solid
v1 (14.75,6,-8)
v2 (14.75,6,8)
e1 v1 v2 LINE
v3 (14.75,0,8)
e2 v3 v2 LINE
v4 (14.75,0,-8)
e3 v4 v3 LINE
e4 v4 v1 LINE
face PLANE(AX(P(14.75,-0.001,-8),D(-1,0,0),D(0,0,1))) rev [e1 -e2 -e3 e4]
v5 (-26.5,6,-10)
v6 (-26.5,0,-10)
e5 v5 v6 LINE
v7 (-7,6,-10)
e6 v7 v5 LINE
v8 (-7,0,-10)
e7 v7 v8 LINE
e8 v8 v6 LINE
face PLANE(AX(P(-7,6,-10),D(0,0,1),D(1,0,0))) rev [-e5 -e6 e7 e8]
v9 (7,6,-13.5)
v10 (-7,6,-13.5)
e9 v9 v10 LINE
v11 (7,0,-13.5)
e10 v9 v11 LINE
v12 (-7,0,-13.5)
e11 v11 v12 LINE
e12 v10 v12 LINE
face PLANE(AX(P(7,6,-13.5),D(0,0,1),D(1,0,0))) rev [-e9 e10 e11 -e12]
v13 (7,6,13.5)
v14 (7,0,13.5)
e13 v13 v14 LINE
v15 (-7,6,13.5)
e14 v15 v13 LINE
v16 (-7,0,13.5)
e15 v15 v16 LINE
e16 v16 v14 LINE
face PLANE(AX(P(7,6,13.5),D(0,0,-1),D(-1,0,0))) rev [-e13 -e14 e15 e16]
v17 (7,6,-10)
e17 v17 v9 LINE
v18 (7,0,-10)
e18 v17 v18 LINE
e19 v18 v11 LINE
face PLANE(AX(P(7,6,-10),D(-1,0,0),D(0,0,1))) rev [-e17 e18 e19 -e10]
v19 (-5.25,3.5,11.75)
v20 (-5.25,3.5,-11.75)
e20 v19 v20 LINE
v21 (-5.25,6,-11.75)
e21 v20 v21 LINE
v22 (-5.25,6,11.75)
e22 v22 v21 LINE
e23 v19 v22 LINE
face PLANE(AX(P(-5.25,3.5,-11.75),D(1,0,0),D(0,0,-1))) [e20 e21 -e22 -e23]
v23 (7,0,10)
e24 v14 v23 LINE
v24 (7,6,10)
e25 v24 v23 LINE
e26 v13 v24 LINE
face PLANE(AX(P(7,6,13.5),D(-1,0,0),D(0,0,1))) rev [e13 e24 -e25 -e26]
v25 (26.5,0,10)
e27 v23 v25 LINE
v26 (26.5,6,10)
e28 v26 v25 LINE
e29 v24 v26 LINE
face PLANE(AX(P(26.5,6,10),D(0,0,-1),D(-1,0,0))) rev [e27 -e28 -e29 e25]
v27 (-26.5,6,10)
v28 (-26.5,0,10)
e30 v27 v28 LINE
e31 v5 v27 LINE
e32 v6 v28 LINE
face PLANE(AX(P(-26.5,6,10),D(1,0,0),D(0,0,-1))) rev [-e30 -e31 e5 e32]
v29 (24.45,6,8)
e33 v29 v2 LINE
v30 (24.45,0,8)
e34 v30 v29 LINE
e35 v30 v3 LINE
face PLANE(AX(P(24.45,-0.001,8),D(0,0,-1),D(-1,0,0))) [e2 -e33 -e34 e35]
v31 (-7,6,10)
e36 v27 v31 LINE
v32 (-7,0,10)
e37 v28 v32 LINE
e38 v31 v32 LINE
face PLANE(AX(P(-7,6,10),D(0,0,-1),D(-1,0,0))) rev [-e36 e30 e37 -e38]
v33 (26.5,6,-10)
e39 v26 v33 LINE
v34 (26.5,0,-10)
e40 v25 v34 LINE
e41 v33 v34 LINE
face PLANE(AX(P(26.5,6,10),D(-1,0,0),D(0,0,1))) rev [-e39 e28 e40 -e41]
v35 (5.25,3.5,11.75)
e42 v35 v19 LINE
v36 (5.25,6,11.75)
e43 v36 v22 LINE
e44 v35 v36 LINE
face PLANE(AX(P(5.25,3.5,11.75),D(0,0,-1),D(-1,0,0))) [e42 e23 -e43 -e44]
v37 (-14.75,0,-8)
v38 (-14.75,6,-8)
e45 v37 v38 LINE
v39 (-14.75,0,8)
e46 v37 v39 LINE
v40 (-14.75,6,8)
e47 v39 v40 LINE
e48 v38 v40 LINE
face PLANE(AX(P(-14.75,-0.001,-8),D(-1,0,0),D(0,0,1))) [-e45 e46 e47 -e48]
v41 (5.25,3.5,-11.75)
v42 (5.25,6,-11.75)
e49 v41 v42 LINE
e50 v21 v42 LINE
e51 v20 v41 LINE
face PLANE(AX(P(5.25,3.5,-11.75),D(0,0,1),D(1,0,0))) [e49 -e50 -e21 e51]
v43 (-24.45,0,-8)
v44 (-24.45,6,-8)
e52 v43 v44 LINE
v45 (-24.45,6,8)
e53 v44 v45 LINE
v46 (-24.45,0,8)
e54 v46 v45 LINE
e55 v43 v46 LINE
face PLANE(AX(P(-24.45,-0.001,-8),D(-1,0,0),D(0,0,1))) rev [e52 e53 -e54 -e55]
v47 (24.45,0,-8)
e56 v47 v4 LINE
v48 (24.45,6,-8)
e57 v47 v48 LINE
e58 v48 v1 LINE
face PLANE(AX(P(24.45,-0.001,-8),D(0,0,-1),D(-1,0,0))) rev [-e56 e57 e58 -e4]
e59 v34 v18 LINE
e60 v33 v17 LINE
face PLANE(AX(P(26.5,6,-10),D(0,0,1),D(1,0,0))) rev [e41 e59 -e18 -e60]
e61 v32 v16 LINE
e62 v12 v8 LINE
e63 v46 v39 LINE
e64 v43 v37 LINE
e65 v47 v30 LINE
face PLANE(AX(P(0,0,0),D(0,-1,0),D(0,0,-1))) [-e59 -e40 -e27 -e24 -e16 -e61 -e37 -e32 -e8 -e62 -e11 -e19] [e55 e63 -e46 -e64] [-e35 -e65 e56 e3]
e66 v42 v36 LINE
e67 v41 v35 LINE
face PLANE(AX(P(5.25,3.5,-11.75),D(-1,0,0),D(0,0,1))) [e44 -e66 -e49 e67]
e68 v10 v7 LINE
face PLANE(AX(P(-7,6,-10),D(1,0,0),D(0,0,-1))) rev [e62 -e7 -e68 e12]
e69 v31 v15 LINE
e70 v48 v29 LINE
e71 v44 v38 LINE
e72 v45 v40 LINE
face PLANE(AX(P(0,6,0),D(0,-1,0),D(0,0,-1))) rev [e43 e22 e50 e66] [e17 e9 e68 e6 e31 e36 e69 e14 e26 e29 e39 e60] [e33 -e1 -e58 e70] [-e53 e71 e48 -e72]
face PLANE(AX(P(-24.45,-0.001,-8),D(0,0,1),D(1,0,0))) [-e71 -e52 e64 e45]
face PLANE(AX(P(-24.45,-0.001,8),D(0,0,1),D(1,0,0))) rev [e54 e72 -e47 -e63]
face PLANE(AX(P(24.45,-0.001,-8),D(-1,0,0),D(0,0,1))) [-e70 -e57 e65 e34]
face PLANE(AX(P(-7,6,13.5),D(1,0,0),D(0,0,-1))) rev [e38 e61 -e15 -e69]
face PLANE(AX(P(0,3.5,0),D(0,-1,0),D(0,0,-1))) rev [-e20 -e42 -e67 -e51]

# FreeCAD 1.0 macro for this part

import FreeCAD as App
import Part
import Sketcher
Q = App.Units.Quantity


def add_polygon(sketch, points):
    """Adds a closed chain of lines whose ends are joined by coincident constraints."""
    first, n = sketch.GeometryCount, len(points)
    for a, b in zip(points, points[1:] + points[:1]):
        sketch.addGeometry(Part.LineSegment(App.Vector(*a, 0), App.Vector(*b, 0)), False)
    for i in range(n):
        sketch.addConstraint(Sketcher.Constraint("Coincident", first + i, 2, first + (i + 1) % n, 1))

doc = App.newDocument("Part")
body = doc.addObject("PartDesign::Body", "Body")

sketch1 = doc.addObject("Sketcher::SketchObject", "Sketch")
body.addObject(sketch1)
sketch1.AttachmentSupport = (doc.XZ_Plane, [""])
sketch1.MapMode = "FlatFace"
add_polygon(sketch1, [(-7, -13.5), (-7, -10), (-26.5, -10), (-26.5, 10), (-7, 10), (-7, 13.5), (7, 13.5), (7, 10), (26.5, 10), (26.5, -10), (7, -10), (7, -13.5)])
sketch1.addConstraint(Sketcher.Constraint("Vertical", 0))
sketch1.addConstraint(Sketcher.Constraint("Horizontal", 1))
sketch1.addConstraint(Sketcher.Constraint("Vertical", 2))
sketch1.addConstraint(Sketcher.Constraint("Horizontal", 3))
sketch1.addConstraint(Sketcher.Constraint("Vertical", 4))
sketch1.addConstraint(Sketcher.Constraint("Horizontal", 5))
sketch1.addConstraint(Sketcher.Constraint("Vertical", 6))
sketch1.addConstraint(Sketcher.Constraint("Horizontal", 7))
sketch1.addConstraint(Sketcher.Constraint("Vertical", 8))
sketch1.addConstraint(Sketcher.Constraint("Horizontal", 9))
sketch1.addConstraint(Sketcher.Constraint("Vertical", 10))
sketch1.addConstraint(Sketcher.Constraint("Horizontal", 11))
sketch1.addConstraint(Sketcher.Constraint("Symmetric", 0, 2, 6, 2, -1, 1))
sketch1.addConstraint(Sketcher.Constraint("Symmetric", 2, 2, 8, 2, -1, 1))
sketch1.addConstraint(Sketcher.Constraint("Symmetric", 4, 2, 10, 2, -1, 1))
sketch1.addConstraint(Sketcher.Constraint("Symmetric", 3, 2, 6, 2, -2))
sketch1.addConstraint(Sketcher.Constraint("DistanceX", 5, 1, 5, 2, Q("14 mm")))
sketch1.addConstraint(Sketcher.Constraint("DistanceY", 2, 1, 2, 2, Q("20 mm")))
sketch1.addConstraint(Sketcher.Constraint("DistanceX", 1, 2, 1, 1, Q("19.5 mm")))
sketch1.addConstraint(Sketcher.Constraint("DistanceY", 0, 1, 0, 2, Q("3.5 mm")))
pad1 = doc.addObject("PartDesign::Pad", "Pad")
body.addObject(pad1)
pad1.Profile = sketch1
pad1.Length = 6
pad1.Reversed = True

sketch2 = doc.addObject("Sketcher::SketchObject", "Sketch001")
body.addObject(sketch2)
sketch2.AttachmentSupport = (doc.XZ_Plane, [""])
sketch2.MapMode = "FlatFace"
sketch2.AttachmentOffset = App.Placement(App.Vector(0, 0, -6), App.Rotation())
add_polygon(sketch2, [(-24, -8), (-24, 8), (-15, 8), (-15, -8)])
sketch2.addConstraint(Sketcher.Constraint("Vertical", 0))
sketch2.addConstraint(Sketcher.Constraint("Horizontal", 1))
sketch2.addConstraint(Sketcher.Constraint("Vertical", 2))
sketch2.addConstraint(Sketcher.Constraint("Horizontal", 3))
sketch2.addConstraint(Sketcher.Constraint("DistanceY", 0, 1, 0, 2, Q("16 mm")))
sketch2.addConstraint(Sketcher.Constraint("DistanceX", 1, 1, 1, 2, Q("9.7 mm")))
sketch2.addConstraint(Sketcher.Constraint("DistanceY", -1, 1, 0, 2, Q("8 mm")))
sketch2.addConstraint(Sketcher.Constraint("DistanceX", 0, 2, -1, 1, Q("24.45 mm")))
pocket1 = doc.addObject("PartDesign::Pocket", "Pocket")
body.addObject(pocket1)
pocket1.Profile = sketch2
pocket1.Type = "UpToFirst"
pocket1.Reversed = True

sketch3 = doc.addObject("Sketcher::SketchObject", "Sketch002")
body.addObject(sketch3)
sketch3.AttachmentSupport = (doc.XZ_Plane, [""])
sketch3.MapMode = "FlatFace"
sketch3.AttachmentOffset = App.Placement(App.Vector(0, 0, -6), App.Rotation())
add_polygon(sketch3, [(15, -8), (15, 8), (24, 8), (24, -8)])
sketch3.addConstraint(Sketcher.Constraint("Vertical", 0))
sketch3.addConstraint(Sketcher.Constraint("Horizontal", 1))
sketch3.addConstraint(Sketcher.Constraint("Vertical", 2))
sketch3.addConstraint(Sketcher.Constraint("Horizontal", 3))
sketch3.addConstraint(Sketcher.Constraint("DistanceY", 0, 1, 0, 2, Q("16 mm")))
sketch3.addConstraint(Sketcher.Constraint("DistanceX", 1, 1, 1, 2, Q("9.7 mm")))
sketch3.addConstraint(Sketcher.Constraint("DistanceY", -1, 1, 0, 2, Q("8 mm")))
sketch3.addConstraint(Sketcher.Constraint("DistanceX", -1, 1, 0, 2, Q("14.75 mm")))
pocket2 = doc.addObject("PartDesign::Pocket", "Pocket001")
body.addObject(pocket2)
pocket2.Profile = sketch3
pocket2.Type = "UpToFirst"
pocket2.Reversed = True

sketch4 = doc.addObject("Sketcher::SketchObject", "Sketch003")
body.addObject(sketch4)
sketch4.AttachmentSupport = (doc.XZ_Plane, [""])
sketch4.MapMode = "FlatFace"
sketch4.AttachmentOffset = App.Placement(App.Vector(0, 0, -6), App.Rotation())
add_polygon(sketch4, [(-5, 12), (-5, -12), (5, -12), (5, 12)])
sketch4.addConstraint(Sketcher.Constraint("Vertical", 0))
sketch4.addConstraint(Sketcher.Constraint("Horizontal", 1))
sketch4.addConstraint(Sketcher.Constraint("Vertical", 2))
sketch4.addConstraint(Sketcher.Constraint("Horizontal", 3))
sketch4.addConstraint(Sketcher.Constraint("Symmetric", 0, 2, 2, 2, -1, 1))
sketch4.addConstraint(Sketcher.Constraint("DistanceX", 1, 1, 1, 2, Q("10.5 mm")))
sketch4.addConstraint(Sketcher.Constraint("DistanceY", 0, 2, 0, 1, Q("23.5 mm")))
pocket3 = doc.addObject("PartDesign::Pocket", "Pocket002")
body.addObject(pocket3)
pocket3.Profile = sketch4
pocket3.Length = 2.5
pocket3.Reversed = True

doc.recompute()
